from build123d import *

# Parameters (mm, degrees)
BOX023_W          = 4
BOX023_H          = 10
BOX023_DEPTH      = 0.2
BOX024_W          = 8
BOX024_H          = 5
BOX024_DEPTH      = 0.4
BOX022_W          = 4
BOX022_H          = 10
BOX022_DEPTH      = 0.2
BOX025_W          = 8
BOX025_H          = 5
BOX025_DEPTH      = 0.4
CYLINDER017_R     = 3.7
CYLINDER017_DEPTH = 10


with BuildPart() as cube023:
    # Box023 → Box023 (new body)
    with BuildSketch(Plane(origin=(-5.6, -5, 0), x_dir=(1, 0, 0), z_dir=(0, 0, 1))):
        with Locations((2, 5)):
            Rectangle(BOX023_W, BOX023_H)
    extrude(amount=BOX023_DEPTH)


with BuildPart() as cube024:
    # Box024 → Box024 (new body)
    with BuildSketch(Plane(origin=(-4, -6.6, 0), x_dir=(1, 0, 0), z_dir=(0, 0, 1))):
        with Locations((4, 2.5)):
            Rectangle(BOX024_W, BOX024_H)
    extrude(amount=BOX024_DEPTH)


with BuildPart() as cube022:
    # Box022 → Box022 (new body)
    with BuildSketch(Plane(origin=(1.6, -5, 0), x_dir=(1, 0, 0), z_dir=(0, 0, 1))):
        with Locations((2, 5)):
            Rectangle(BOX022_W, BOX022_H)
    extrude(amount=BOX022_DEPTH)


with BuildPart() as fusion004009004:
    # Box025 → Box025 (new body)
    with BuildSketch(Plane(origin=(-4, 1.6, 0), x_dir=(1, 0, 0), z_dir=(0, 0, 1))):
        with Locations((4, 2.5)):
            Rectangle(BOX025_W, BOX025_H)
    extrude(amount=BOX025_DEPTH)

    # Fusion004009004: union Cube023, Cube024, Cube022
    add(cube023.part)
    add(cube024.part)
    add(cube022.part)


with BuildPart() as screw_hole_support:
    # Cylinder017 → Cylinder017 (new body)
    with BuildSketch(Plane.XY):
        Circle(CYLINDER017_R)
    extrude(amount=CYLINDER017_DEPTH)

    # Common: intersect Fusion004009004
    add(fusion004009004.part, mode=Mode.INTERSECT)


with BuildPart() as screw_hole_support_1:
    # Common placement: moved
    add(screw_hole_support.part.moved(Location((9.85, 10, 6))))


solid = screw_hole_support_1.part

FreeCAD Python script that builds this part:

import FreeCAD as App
import Part
import Sketcher

V = App.Vector


def add_polygon(sketch, points):
    """Adds a closed chain of lines whose ends are joined by coincident constraints."""
    first, n = sketch.GeometryCount, len(points)
    for a, b in zip(points, points[1:] + points[:1]):
        sketch.addGeometry(Part.LineSegment(App.Vector(*a, 0), App.Vector(*b, 0)), False)
    for i in range(n):
        sketch.addConstraint(Sketcher.Constraint("Coincident", first + i, 2, first + (i + 1) % n, 1))

doc = App.newDocument("Part")
body = doc.addObject("PartDesign::Body", "Body")

# Sketch on XY plane
sketch1 = body.newObject("Sketcher::SketchObject", "Sketch")
sketch1.AttachmentSupport = (doc.getObject("XY_Plane"), [""])
sketch1.MapMode = "FlatFace"
add_polygon(sketch1, [(-5.6, 5), (-5.6, -5), (-1.6, -5), (-1.6, 5)])  # lines 0-3
sketch1.addConstraint(Sketcher.Constraint("Vertical", 0))
sketch1.addConstraint(Sketcher.Constraint("Horizontal", 1))
sketch1.addConstraint(Sketcher.Constraint("Vertical", 2))
sketch1.addConstraint(Sketcher.Constraint("Horizontal", 3))
sketch1.addConstraint(Sketcher.Constraint("DistanceX", 1, 1, 1, 2, 4.0))
sketch1.addConstraint(Sketcher.Constraint("DistanceY", 0, 2, 0, 1, 10.0))
sketch1.addConstraint(Sketcher.Constraint("DistanceY", 0, 2, -1, 1, 5.0))
sketch1.addConstraint(Sketcher.Constraint("DistanceX", 0, 2, -1, 1, 5.6))
pad1 = body.newObject("PartDesign::Pad", "Pad")
pad1.Profile = sketch1
pad1.Length = 0.2
body2 = doc.addObject("PartDesign::Body", "Body001")

# Sketch on XY plane
sketch2 = body2.newObject("Sketcher::SketchObject", "Sketch001")
sketch2.AttachmentSupport = (doc.getObject("XY_Plane001"), [""])
sketch2.MapMode = "FlatFace"
add_polygon(sketch2, [(-4, -2), (-4, -7), (4, -7), (4, -2)])  # lines 0-3
sketch2.addConstraint(Sketcher.Constraint("Vertical", 0))
sketch2.addConstraint(Sketcher.Constraint("Horizontal", 1))
sketch2.addConstraint(Sketcher.Constraint("Vertical", 2))
sketch2.addConstraint(Sketcher.Constraint("Horizontal", 3))
sketch2.addConstraint(Sketcher.Constraint("DistanceX", 1, 1, 1, 2, 8.0))
sketch2.addConstraint(Sketcher.Constraint("DistanceY", 0, 2, 0, 1, 5.0))
sketch2.addConstraint(Sketcher.Constraint("DistanceX", 0, 2, -1, 1, 4.0))
sketch2.addConstraint(Sketcher.Constraint("DistanceY", 0, 2, -1, 1, 6.6))
pad2 = body2.newObject("PartDesign::Pad", "Pad001")
pad2.Profile = sketch2
pad2.Length = 0.4
body3 = doc.addObject("PartDesign::Body", "Body002")

# Sketch on XY plane
sketch3 = body3.newObject("Sketcher::SketchObject", "Sketch002")
sketch3.AttachmentSupport = (doc.getObject("XY_Plane002"), [""])
sketch3.MapMode = "FlatFace"
add_polygon(sketch3, [(1.6, 5), (1.6, -5), (5.6, -5), (5.6, 5)])  # lines 0-3
sketch3.addConstraint(Sketcher.Constraint("Vertical", 0))
sketch3.addConstraint(Sketcher.Constraint("Horizontal", 1))
sketch3.addConstraint(Sketcher.Constraint("Vertical", 2))
sketch3.addConstraint(Sketcher.Constraint("Horizontal", 3))
sketch3.addConstraint(Sketcher.Constraint("DistanceX", 1, 1, 1, 2, 4.0))
sketch3.addConstraint(Sketcher.Constraint("DistanceY", 0, 2, 0, 1, 10.0))
sketch3.addConstraint(Sketcher.Constraint("DistanceY", 0, 2, -1, 1, 5.0))
sketch3.addConstraint(Sketcher.Constraint("DistanceX", -1, 1, 0, 2, 1.6))
pad3 = body3.newObject("PartDesign::Pad", "Pad002")
pad3.Profile = sketch3
pad3.Length = 0.2
body4 = doc.addObject("PartDesign::Body", "Body003")

# Sketch on XY plane
sketch4 = body4.newObject("Sketcher::SketchObject", "Sketch003")
sketch4.AttachmentSupport = (doc.getObject("XY_Plane003"), [""])
sketch4.MapMode = "FlatFace"
add_polygon(sketch4, [(-4, 7), (-4, 2), (4, 2), (4, 7)])  # lines 0-3
sketch4.addConstraint(Sketcher.Constraint("Vertical", 0))
sketch4.addConstraint(Sketcher.Constraint("Horizontal", 1))
sketch4.addConstraint(Sketcher.Constraint("Vertical", 2))
sketch4.addConstraint(Sketcher.Constraint("Horizontal", 3))
sketch4.addConstraint(Sketcher.Constraint("DistanceX", 1, 1, 1, 2, 8.0))
sketch4.addConstraint(Sketcher.Constraint("DistanceY", 0, 2, 0, 1, 5.0))
sketch4.addConstraint(Sketcher.Constraint("DistanceX", 0, 2, -1, 1, 4.0))
sketch4.addConstraint(Sketcher.Constraint("DistanceY", -1, 1, 0, 2, 1.6))
pad4 = body4.newObject("PartDesign::Pad", "Pad003")
pad4.Profile = sketch4
pad4.Length = 0.4
doc.recompute()

boolean = body4.newObject("PartDesign::Boolean", "Boolean")
boolean.Type = "Fuse"
boolean.addObjects([body])
doc.recompute()

boolean2 = body4.newObject("PartDesign::Boolean", "Boolean001")
boolean2.Type = "Fuse"
boolean2.addObjects([body2])
doc.recompute()

boolean3 = body4.newObject("PartDesign::Boolean", "Boolean002")
boolean3.Type = "Fuse"
boolean3.addObjects([body3])
body5 = doc.addObject("PartDesign::Body", "Body004")

# Sketch on XY plane
sketch5 = body5.newObject("Sketcher::SketchObject", "Sketch004")
sketch5.AttachmentSupport = (doc.getObject("XY_Plane004"), [""])
sketch5.MapMode = "FlatFace"
sketch5.addGeometry(Part.Circle(V(0, 0, 0), V(0, 0, 1), 3.7), False)
sketch5.addConstraint(Sketcher.Constraint("Coincident", 0, 3, -1, 1))
sketch5.addConstraint(Sketcher.Constraint("Diameter", 0, 7.4))
pad5 = body5.newObject("PartDesign::Pad", "Pad004")
pad5.Profile = sketch5
pad5.Length = 10
doc.recompute()

boolean4 = body5.newObject("PartDesign::Boolean", "Boolean003")
boolean4.Type = "Common"
boolean4.addObjects([body4])
body6 = doc.addObject("PartDesign::Body", "Body005")
doc.recompute()

body5.Placement = App.Placement(V(9.85, 10, 6), App.Rotation(V(0, 0, 1), 0))
boolean5 = body6.newObject("PartDesign::Boolean", "Boolean004")
boolean5.Type = "Fuse"
boolean5.addObjects([body5])

doc.recompute()
